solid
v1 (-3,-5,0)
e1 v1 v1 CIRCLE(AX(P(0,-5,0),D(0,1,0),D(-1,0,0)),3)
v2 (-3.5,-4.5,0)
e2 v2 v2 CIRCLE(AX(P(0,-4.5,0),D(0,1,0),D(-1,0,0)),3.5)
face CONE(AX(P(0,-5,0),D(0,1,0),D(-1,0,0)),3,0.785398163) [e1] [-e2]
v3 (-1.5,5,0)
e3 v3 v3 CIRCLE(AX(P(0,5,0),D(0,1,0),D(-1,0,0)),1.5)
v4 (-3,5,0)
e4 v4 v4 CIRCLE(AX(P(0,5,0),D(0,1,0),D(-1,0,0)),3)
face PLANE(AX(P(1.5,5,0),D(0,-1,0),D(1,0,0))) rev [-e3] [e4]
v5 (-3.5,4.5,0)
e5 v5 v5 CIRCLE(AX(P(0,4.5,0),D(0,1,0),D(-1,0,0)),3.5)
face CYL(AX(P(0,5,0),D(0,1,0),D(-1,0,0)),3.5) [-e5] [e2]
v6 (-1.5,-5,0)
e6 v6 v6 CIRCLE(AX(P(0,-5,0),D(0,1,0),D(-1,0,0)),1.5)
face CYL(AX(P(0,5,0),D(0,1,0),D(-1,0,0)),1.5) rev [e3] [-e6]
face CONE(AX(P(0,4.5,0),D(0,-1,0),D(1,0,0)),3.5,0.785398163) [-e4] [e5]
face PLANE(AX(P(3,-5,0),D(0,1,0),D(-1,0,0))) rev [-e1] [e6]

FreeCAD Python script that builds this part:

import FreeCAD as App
import Part
import Sketcher
Q = App.Units.Quantity


def add_polygon(sketch, points):
    """Adds a closed chain of lines whose ends are joined by coincident constraints."""
    first, n = sketch.GeometryCount, len(points)
    for a, b in zip(points, points[1:] + points[:1]):
        sketch.addGeometry(Part.LineSegment(App.Vector(*a, 0), App.Vector(*b, 0)), False)
    for i in range(n):
        sketch.addConstraint(Sketcher.Constraint("Coincident", first + i, 2, first + (i + 1) % n, 1))

doc = App.newDocument("Part")
params = doc.addObject("Spreadsheet::Sheet", "Params")
for row, (alias, value) in enumerate([
    ("sketch1_height", "10 mm"),
    ("sketch1_height2", "9 mm"),
    ("sketch1_width", "1.5 mm"),
    ("revolution_angle", "360 deg"),
], start=1):
    params.set(f"A{row}", alias)
    params.set(f"B{row}", "=" + value)
    params.setAlias(f"B{row}", alias)

body = doc.addObject("PartDesign::Body", "Body")

# Sketch on XY plane
sketch1 = doc.addObject("Sketcher::SketchObject", "Sketch")
body.addObject(sketch1)
sketch1.AttachmentSupport = (doc.XY_Plane, [""])
sketch1.MapMode = "FlatFace"
add_polygon(sketch1, [(1.5, 5), (1.5, -5), (3, -5), (3.5, -4.5), (3.5, 4.5), (3, 5)])  # lines 0-5
sketch1.addConstraint(Sketcher.Constraint("Vertical", 0))
sketch1.addConstraint(Sketcher.Constraint("Horizontal", 1))
sketch1.addConstraint(Sketcher.Constraint("Vertical", 3))
sketch1.addConstraint(Sketcher.Constraint("Horizontal", 5))
sketch1.addConstraint(Sketcher.Constraint("Symmetric", 1, 2, 4, 2, -1))
sketch1.addConstraint(Sketcher.Constraint("Perpendicular", 2, 4))
sketch1.addConstraint(Sketcher.Constraint("Equal", 2, 4))
sketch1.addConstraint(Sketcher.Constraint("DistanceY", 0, 2, 0, 1, Q("10 mm")))
sketch1.addConstraint(Sketcher.Constraint("DistanceY", 3, 1, 3, 2, Q("9 mm")))
sketch1.addConstraint(Sketcher.Constraint("DistanceX", 1, 1, 1, 2, Q("1.5 mm")))
sketch1.addConstraint(Sketcher.Constraint("DistanceX", -1, 1, 1, 2, Q("3 mm")))
sketch1.setExpression("Constraints[13]", "Params.sketch1_height")
sketch1.setExpression("Constraints[14]", "Params.sketch1_height2")
sketch1.setExpression("Constraints[15]", "Params.sketch1_width")
revolution = doc.addObject("PartDesign::Revolution", "Revolution")
body.addObject(revolution)
revolution.Profile = sketch1
revolution.ReferenceAxis = (sketch1, ["V_Axis"])
revolution.setExpression("Angle", "Params.revolution_angle")

doc.recompute()
